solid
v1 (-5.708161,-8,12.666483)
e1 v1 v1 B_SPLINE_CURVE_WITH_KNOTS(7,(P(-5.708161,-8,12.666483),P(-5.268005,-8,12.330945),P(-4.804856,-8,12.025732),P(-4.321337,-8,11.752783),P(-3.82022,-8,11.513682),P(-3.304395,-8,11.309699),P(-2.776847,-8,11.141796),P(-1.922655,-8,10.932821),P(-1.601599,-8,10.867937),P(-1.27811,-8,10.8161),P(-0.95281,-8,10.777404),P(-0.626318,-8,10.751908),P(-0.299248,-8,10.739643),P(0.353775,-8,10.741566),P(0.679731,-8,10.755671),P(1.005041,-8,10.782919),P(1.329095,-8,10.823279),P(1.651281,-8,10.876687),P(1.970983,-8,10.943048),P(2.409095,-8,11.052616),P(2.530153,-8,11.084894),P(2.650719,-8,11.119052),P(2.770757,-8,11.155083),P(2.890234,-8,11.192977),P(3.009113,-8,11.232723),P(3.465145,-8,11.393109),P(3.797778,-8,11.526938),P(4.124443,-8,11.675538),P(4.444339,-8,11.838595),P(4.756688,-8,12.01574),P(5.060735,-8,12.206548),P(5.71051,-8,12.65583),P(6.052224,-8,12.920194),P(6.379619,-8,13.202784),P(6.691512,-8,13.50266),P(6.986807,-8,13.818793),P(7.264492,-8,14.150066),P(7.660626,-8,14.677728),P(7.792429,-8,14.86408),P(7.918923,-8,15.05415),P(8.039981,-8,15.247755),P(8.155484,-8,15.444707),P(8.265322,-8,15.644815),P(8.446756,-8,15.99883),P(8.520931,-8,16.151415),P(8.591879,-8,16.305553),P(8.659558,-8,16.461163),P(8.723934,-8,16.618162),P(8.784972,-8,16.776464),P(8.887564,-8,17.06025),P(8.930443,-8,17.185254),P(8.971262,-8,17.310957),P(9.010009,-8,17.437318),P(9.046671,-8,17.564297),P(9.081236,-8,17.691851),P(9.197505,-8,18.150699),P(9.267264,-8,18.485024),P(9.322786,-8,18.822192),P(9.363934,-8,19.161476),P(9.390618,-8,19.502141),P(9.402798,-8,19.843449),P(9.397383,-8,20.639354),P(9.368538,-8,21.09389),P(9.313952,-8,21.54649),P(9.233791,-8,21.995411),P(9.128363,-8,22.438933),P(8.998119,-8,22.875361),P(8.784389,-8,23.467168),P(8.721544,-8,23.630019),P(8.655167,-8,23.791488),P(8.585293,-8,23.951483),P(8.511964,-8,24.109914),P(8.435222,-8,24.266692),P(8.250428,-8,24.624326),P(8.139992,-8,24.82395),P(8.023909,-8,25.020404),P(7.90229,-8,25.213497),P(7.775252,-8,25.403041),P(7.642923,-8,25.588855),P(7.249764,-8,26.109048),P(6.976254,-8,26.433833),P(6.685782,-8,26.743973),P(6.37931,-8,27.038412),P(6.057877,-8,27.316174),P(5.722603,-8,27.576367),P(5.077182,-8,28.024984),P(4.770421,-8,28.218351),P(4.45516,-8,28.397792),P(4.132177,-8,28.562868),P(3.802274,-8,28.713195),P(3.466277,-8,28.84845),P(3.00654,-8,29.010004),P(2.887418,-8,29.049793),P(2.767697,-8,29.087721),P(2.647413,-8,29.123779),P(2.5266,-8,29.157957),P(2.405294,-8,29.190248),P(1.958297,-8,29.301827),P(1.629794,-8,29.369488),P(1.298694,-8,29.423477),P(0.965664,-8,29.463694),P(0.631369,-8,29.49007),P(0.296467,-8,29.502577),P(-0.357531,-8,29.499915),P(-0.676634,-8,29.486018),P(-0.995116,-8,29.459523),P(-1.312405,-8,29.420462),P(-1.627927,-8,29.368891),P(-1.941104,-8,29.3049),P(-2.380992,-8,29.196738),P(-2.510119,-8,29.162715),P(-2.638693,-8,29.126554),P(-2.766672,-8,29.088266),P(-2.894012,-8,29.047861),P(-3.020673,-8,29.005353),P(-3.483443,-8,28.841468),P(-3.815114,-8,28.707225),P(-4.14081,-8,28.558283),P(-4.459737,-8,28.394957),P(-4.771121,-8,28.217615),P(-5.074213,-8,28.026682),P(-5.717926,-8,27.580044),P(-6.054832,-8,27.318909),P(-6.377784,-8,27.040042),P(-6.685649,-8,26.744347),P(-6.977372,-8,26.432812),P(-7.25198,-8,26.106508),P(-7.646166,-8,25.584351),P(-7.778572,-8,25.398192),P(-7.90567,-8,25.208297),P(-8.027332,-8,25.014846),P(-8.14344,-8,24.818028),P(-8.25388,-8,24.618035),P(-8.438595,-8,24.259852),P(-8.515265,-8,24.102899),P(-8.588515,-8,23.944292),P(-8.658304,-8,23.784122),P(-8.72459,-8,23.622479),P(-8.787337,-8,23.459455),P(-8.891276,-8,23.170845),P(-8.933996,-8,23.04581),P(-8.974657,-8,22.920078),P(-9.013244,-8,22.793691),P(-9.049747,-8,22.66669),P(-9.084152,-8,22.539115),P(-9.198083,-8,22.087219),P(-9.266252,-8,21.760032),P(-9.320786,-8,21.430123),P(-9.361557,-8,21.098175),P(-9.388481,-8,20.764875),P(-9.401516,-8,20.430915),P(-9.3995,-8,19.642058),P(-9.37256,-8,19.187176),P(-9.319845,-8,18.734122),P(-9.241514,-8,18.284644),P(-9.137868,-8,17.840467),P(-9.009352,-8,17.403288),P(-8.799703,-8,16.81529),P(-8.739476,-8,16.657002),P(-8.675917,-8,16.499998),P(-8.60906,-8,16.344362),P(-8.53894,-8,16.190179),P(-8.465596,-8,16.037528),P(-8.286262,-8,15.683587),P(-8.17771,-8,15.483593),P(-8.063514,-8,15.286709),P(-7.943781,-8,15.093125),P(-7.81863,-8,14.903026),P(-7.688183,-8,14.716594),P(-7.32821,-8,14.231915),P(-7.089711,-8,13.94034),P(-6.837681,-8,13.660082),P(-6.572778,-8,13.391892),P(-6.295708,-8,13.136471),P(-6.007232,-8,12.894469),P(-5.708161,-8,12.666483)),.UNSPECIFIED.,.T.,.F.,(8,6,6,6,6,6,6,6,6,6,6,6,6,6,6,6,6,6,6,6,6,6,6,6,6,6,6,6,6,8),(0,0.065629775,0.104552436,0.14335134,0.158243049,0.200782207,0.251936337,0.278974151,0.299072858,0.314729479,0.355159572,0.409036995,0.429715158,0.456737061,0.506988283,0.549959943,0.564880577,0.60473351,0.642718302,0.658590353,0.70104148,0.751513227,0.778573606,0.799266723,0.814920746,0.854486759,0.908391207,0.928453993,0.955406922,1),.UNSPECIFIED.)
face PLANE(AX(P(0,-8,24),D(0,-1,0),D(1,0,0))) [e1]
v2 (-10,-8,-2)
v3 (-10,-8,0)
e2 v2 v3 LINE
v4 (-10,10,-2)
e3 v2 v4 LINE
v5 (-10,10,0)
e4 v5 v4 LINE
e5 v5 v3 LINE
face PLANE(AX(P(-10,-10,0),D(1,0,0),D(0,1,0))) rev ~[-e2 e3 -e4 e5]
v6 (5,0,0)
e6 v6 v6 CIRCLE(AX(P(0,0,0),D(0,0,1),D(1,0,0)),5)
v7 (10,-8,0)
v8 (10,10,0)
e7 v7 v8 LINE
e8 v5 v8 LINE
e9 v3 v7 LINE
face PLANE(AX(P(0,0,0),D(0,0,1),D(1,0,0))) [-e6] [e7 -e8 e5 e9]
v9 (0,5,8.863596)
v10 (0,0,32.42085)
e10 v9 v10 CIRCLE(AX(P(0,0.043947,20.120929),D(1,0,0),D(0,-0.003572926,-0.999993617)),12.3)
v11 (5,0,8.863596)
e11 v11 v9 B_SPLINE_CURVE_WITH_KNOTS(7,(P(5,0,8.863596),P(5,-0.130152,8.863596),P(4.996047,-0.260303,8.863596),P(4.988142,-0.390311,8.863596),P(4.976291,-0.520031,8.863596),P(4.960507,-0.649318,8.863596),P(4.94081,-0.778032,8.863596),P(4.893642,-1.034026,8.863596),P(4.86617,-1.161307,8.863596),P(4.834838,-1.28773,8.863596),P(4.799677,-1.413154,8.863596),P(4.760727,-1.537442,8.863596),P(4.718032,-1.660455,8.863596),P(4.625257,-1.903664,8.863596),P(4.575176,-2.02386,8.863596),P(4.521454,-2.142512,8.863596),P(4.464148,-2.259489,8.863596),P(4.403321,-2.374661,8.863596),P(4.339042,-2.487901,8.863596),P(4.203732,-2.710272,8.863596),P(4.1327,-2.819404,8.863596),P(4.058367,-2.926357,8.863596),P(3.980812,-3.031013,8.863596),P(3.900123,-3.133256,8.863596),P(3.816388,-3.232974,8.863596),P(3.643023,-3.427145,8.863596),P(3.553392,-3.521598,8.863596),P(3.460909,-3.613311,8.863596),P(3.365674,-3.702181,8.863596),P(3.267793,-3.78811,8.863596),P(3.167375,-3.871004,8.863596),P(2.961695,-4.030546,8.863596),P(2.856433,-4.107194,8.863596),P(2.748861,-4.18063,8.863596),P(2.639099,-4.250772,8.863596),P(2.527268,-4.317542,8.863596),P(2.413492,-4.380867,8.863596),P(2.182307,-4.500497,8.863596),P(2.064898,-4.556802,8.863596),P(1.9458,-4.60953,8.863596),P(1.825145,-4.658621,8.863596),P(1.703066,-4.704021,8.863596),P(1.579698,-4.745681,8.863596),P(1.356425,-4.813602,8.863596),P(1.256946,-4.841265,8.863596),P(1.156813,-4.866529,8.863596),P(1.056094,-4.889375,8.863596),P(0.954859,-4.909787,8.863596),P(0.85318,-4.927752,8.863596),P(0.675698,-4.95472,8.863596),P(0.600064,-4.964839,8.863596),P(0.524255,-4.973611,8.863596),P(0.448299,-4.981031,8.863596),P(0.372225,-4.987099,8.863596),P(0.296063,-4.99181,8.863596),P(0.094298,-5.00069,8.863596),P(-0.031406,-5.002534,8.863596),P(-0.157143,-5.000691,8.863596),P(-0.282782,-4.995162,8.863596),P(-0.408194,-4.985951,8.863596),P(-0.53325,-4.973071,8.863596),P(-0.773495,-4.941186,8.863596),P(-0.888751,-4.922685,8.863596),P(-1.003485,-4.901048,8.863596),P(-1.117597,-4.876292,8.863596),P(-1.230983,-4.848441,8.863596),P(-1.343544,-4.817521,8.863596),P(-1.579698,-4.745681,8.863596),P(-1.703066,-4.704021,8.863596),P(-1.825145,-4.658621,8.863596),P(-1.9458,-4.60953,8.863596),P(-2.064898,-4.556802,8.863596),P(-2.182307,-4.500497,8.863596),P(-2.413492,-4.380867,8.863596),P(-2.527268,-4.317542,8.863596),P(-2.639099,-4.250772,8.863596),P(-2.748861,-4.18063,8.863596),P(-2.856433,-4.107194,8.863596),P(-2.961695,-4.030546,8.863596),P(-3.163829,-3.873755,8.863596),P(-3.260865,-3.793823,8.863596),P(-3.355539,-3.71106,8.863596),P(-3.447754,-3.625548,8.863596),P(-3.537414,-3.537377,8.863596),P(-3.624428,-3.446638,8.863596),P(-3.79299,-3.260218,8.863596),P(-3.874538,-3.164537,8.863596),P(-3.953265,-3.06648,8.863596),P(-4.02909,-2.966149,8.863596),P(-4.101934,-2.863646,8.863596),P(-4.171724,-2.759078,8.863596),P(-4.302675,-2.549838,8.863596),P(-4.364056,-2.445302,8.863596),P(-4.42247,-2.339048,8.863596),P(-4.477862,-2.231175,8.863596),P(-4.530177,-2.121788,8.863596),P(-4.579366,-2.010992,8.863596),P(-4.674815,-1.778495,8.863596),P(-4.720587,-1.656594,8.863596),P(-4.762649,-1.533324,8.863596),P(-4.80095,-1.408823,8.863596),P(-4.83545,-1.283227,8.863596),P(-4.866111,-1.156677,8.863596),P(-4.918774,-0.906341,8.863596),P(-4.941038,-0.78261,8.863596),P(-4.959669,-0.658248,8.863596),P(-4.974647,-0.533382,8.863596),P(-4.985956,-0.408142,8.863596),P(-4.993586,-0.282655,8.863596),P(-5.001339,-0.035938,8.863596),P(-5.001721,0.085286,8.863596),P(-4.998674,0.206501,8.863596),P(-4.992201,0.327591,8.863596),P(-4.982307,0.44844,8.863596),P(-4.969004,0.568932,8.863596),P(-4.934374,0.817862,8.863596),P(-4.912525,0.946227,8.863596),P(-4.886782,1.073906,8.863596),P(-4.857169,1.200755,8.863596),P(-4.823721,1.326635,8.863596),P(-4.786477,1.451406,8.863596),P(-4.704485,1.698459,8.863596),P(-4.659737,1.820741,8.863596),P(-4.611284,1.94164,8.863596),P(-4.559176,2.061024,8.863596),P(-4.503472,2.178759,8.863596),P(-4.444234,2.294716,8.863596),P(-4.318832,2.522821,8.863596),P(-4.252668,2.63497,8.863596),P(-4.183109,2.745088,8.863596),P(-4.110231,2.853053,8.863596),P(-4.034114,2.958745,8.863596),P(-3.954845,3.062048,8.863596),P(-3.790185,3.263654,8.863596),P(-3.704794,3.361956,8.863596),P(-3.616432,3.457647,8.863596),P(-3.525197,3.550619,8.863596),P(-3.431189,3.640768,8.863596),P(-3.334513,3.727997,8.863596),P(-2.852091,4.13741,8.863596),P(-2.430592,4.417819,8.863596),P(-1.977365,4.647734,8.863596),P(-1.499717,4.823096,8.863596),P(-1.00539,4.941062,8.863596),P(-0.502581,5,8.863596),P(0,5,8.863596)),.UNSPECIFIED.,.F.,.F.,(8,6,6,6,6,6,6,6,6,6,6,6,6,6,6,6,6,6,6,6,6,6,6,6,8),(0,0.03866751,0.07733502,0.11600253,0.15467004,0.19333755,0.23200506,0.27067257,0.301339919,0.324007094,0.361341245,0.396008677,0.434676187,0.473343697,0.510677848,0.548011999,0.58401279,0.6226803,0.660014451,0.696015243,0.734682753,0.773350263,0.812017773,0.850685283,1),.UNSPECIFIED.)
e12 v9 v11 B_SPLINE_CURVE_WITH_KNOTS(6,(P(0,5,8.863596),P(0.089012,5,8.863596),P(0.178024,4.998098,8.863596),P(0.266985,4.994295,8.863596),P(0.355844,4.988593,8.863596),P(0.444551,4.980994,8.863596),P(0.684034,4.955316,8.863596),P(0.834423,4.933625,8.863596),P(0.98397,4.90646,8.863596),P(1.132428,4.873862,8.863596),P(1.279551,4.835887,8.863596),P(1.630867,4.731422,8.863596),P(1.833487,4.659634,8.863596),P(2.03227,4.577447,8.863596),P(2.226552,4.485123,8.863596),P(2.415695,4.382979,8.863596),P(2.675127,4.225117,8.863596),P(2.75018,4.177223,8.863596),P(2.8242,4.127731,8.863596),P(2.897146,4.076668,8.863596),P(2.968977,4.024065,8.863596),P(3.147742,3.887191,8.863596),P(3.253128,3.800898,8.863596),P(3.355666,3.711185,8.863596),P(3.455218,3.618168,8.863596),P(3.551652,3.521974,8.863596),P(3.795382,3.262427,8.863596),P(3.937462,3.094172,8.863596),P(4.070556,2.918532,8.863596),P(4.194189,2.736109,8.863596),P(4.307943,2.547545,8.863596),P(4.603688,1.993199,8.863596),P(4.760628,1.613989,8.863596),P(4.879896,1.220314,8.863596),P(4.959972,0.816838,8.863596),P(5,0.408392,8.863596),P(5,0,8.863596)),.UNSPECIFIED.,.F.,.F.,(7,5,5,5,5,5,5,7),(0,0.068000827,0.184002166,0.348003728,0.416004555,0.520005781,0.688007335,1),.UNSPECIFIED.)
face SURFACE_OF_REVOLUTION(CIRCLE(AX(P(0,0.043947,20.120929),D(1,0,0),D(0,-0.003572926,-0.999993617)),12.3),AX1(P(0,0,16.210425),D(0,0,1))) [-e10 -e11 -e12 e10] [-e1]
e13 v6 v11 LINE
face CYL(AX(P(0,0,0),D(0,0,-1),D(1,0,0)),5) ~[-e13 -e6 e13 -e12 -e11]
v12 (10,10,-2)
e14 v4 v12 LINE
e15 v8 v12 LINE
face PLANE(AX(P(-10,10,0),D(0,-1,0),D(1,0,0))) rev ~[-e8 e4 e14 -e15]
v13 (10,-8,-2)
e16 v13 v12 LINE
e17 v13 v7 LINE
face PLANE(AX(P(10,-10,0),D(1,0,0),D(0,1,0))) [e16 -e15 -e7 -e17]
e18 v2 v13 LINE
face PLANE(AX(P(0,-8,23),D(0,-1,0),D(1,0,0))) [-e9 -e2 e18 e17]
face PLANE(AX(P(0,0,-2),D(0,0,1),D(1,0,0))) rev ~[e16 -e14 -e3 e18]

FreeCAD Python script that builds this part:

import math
import FreeCAD as App
import Part
import Sketcher


def add_polygon(sketch, points):
    """Adds a closed chain of lines whose ends are joined by coincident constraints."""
    first, n = sketch.GeometryCount, len(points)
    for a, b in zip(points, points[1:] + points[:1]):
        sketch.addGeometry(Part.LineSegment(App.Vector(*a, 0), App.Vector(*b, 0)), False)
    for i in range(n):
        sketch.addConstraint(Sketcher.Constraint("Coincident", first + i, 2, first + (i + 1) % n, 1))

doc = App.newDocument("Part")
body = doc.addObject("PartDesign::Body", "Body")
body.AllowCompound = True

# Sketch on XY plane
sketch1 = doc.addObject("Sketcher::SketchObject", "Sketch")
body.addObject(sketch1)
sketch1.AttachmentSupport = (doc.XY_Plane, [""])
sketch1.MapMode = "FlatFace"
add_polygon(sketch1, [(-10, 10), (-10, -10), (10, -10), (10, 10)])  # lines 0-3
sketch1.addConstraint([
    Sketcher.Constraint("Vertical", 0),
    Sketcher.Constraint("Horizontal", 1),
    Sketcher.Constraint("Vertical", 2),
    Sketcher.Constraint("Horizontal", 3),
    Sketcher.Constraint("Symmetric", 0, 2, 2, 2, -1, 1),
    Sketcher.Constraint("Equal", 3, 0),
    Sketcher.Constraint("DistanceX", 1, 1, 1, 2, 20.0),
])
pad1 = doc.addObject("PartDesign::Pad", "Pad")
body.addObject(pad1)
pad1.Profile = sketch1
pad1.Length = 2
pad1.Reversed = True

# Sketch on XY plane
sketch2 = doc.addObject("Sketcher::SketchObject", "Sketch001")
body.addObject(sketch2)
sketch2.AttachmentSupport = (doc.XY_Plane, [""])
sketch2.MapMode = "FlatFace"
sketch2.addGeometry(Part.Circle(App.Vector(0, 0, 0), App.Vector(0, 0, 1), 5), False)
sketch2.addConstraint([
    Sketcher.Constraint("Coincident", 0, 3, -1, 1),
    Sketcher.Constraint("Diameter", 0, 10.0),
])
pad2 = doc.addObject("PartDesign::Pad", "Pad001")
body.addObject(pad2)
pad2.Profile = sketch2
pad2.Length = 10

# Sketch on YZ plane
sketch3 = doc.addObject("Sketcher::SketchObject", "Sketch002")
body.addObject(sketch3)
sketch3.AttachmentSupport = (doc.YZ_Plane, [""])
sketch3.MapMode = "FlatFace"
sketch3.addGeometry([
    Part.LineSegment(App.Vector(0, 32.42085, 0), App.Vector(0, 7.821007, 0)),
    Part.ArcOfCircle(Part.Circle(App.Vector(0.043947, 20.120929, 0), App.Vector(0, 0, 1), 12.3), math.radians(-90.204714), math.radians(90.204714)),
], False)
sketch3.addConstraint([
    Sketcher.Constraint("Coincident", 0, 1, 1, 2),
    Sketcher.Constraint("Coincident", 1, 1, 0, 2),
    Sketcher.Constraint("Vertical", 0),
    Sketcher.Constraint("PointOnObject", 0, 1, -2),
    Sketcher.Constraint("Radius", 1, 12.3),
    Sketcher.Constraint("DistanceY", 0, 2, 0, 1, 24.599843),
    Sketcher.Constraint("DistanceY", -1, 1, 1, 3, 20.120929),
])
revolution = doc.addObject("PartDesign::Revolution", "Revolution")
body.addObject(revolution)
revolution.Profile = sketch3
revolution.ReferenceAxis = (sketch3, ["V_Axis"])
revolution.Angle = 360

# Sketch on XZ plane
sketch4 = doc.addObject("Sketcher::SketchObject", "Sketch003")
body.addObject(sketch4)
sketch4.AttachmentSupport = (doc.XZ_Plane, [""])
sketch4.MapMode = "FlatFace"
sketch4.AttachmentOffset = App.Placement(App.Vector(0, 0, 10), App.Rotation())
add_polygon(sketch4, [(-10, 48), (-10, 0), (10, 0), (10, 48)])  # lines 0-3
sketch4.addConstraint([
    Sketcher.Constraint("Vertical", 0),
    Sketcher.Constraint("Horizontal", 1),
    Sketcher.Constraint("Vertical", 2),
    Sketcher.Constraint("Horizontal", 3),
    Sketcher.Constraint("Symmetric", 0, 2, 1, 2, -1, 1),
    Sketcher.Constraint("DistanceX", 1, 1, 1, 2, 20.0),
    Sketcher.Constraint("DistanceY", 0, 2, 0, 1, 48.0),
])
pocket1 = doc.addObject("PartDesign::Pocket", "Pocket")
body.addObject(pocket1)
pocket1.Profile = sketch4
pocket1.Length = 2

# Sketch on XZ plane
sketch5 = doc.addObject("Sketcher::SketchObject", "Sketch004")
body.addObject(sketch5)
sketch5.AttachmentSupport = (doc.XZ_Plane, [""])
sketch5.MapMode = "FlatFace"
sketch5.AttachmentOffset = App.Placement(App.Vector(0, 0, 10), App.Rotation())
add_polygon(sketch5, [(-10, 48), (-10, -2), (10, -2), (10, 48)])  # lines 0-3
sketch5.addConstraint([
    Sketcher.Constraint("Vertical", 0),
    Sketcher.Constraint("Horizontal", 1),
    Sketcher.Constraint("Vertical", 2),
    Sketcher.Constraint("Horizontal", 3),
    Sketcher.Constraint("DistanceX", 1, 1, 1, 2, 20.0),
    Sketcher.Constraint("DistanceY", 0, 2, 0, 1, 50.0),
    Sketcher.Constraint("DistanceX", 0, 2, -1, 1, 10.0),
    Sketcher.Constraint("DistanceY", 0, 2, -1, 1, 2.0),
])
pocket2 = doc.addObject("PartDesign::Pocket", "Pocket001")
body.addObject(pocket2)
pocket2.Profile = sketch5
pocket2.Length = 5
pocket2.Reversed = True

# Sketch on XZ plane
sketch6 = doc.addObject("Sketcher::SketchObject", "Sketch005")
body.addObject(sketch6)
sketch6.AttachmentSupport = (doc.XZ_Plane, [""])
sketch6.MapMode = "FlatFace"
sketch6.AttachmentOffset = App.Placement(App.Vector(0, 0, 10), App.Rotation())
add_polygon(sketch6, [(-10, 48), (-10, -2), (10, -2), (10, 48)])  # lines 0-3
sketch6.addConstraint([
    Sketcher.Constraint("Vertical", 0),
    Sketcher.Constraint("Horizontal", 1),
    Sketcher.Constraint("Vertical", 2),
    Sketcher.Constraint("Horizontal", 3),
    Sketcher.Constraint("DistanceX", 1, 1, 1, 2, 20.0),
    Sketcher.Constraint("DistanceY", 0, 2, 0, 1, 50.0),
    Sketcher.Constraint("DistanceX", 0, 2, -1, 1, 10.0),
    Sketcher.Constraint("DistanceY", 0, 2, -1, 1, 2.0),
])
pocket3 = doc.addObject("PartDesign::Pocket", "Pocket002")
body.addObject(pocket3)
pocket3.Profile = sketch6
pocket3.Length = 2

doc.recompute()
